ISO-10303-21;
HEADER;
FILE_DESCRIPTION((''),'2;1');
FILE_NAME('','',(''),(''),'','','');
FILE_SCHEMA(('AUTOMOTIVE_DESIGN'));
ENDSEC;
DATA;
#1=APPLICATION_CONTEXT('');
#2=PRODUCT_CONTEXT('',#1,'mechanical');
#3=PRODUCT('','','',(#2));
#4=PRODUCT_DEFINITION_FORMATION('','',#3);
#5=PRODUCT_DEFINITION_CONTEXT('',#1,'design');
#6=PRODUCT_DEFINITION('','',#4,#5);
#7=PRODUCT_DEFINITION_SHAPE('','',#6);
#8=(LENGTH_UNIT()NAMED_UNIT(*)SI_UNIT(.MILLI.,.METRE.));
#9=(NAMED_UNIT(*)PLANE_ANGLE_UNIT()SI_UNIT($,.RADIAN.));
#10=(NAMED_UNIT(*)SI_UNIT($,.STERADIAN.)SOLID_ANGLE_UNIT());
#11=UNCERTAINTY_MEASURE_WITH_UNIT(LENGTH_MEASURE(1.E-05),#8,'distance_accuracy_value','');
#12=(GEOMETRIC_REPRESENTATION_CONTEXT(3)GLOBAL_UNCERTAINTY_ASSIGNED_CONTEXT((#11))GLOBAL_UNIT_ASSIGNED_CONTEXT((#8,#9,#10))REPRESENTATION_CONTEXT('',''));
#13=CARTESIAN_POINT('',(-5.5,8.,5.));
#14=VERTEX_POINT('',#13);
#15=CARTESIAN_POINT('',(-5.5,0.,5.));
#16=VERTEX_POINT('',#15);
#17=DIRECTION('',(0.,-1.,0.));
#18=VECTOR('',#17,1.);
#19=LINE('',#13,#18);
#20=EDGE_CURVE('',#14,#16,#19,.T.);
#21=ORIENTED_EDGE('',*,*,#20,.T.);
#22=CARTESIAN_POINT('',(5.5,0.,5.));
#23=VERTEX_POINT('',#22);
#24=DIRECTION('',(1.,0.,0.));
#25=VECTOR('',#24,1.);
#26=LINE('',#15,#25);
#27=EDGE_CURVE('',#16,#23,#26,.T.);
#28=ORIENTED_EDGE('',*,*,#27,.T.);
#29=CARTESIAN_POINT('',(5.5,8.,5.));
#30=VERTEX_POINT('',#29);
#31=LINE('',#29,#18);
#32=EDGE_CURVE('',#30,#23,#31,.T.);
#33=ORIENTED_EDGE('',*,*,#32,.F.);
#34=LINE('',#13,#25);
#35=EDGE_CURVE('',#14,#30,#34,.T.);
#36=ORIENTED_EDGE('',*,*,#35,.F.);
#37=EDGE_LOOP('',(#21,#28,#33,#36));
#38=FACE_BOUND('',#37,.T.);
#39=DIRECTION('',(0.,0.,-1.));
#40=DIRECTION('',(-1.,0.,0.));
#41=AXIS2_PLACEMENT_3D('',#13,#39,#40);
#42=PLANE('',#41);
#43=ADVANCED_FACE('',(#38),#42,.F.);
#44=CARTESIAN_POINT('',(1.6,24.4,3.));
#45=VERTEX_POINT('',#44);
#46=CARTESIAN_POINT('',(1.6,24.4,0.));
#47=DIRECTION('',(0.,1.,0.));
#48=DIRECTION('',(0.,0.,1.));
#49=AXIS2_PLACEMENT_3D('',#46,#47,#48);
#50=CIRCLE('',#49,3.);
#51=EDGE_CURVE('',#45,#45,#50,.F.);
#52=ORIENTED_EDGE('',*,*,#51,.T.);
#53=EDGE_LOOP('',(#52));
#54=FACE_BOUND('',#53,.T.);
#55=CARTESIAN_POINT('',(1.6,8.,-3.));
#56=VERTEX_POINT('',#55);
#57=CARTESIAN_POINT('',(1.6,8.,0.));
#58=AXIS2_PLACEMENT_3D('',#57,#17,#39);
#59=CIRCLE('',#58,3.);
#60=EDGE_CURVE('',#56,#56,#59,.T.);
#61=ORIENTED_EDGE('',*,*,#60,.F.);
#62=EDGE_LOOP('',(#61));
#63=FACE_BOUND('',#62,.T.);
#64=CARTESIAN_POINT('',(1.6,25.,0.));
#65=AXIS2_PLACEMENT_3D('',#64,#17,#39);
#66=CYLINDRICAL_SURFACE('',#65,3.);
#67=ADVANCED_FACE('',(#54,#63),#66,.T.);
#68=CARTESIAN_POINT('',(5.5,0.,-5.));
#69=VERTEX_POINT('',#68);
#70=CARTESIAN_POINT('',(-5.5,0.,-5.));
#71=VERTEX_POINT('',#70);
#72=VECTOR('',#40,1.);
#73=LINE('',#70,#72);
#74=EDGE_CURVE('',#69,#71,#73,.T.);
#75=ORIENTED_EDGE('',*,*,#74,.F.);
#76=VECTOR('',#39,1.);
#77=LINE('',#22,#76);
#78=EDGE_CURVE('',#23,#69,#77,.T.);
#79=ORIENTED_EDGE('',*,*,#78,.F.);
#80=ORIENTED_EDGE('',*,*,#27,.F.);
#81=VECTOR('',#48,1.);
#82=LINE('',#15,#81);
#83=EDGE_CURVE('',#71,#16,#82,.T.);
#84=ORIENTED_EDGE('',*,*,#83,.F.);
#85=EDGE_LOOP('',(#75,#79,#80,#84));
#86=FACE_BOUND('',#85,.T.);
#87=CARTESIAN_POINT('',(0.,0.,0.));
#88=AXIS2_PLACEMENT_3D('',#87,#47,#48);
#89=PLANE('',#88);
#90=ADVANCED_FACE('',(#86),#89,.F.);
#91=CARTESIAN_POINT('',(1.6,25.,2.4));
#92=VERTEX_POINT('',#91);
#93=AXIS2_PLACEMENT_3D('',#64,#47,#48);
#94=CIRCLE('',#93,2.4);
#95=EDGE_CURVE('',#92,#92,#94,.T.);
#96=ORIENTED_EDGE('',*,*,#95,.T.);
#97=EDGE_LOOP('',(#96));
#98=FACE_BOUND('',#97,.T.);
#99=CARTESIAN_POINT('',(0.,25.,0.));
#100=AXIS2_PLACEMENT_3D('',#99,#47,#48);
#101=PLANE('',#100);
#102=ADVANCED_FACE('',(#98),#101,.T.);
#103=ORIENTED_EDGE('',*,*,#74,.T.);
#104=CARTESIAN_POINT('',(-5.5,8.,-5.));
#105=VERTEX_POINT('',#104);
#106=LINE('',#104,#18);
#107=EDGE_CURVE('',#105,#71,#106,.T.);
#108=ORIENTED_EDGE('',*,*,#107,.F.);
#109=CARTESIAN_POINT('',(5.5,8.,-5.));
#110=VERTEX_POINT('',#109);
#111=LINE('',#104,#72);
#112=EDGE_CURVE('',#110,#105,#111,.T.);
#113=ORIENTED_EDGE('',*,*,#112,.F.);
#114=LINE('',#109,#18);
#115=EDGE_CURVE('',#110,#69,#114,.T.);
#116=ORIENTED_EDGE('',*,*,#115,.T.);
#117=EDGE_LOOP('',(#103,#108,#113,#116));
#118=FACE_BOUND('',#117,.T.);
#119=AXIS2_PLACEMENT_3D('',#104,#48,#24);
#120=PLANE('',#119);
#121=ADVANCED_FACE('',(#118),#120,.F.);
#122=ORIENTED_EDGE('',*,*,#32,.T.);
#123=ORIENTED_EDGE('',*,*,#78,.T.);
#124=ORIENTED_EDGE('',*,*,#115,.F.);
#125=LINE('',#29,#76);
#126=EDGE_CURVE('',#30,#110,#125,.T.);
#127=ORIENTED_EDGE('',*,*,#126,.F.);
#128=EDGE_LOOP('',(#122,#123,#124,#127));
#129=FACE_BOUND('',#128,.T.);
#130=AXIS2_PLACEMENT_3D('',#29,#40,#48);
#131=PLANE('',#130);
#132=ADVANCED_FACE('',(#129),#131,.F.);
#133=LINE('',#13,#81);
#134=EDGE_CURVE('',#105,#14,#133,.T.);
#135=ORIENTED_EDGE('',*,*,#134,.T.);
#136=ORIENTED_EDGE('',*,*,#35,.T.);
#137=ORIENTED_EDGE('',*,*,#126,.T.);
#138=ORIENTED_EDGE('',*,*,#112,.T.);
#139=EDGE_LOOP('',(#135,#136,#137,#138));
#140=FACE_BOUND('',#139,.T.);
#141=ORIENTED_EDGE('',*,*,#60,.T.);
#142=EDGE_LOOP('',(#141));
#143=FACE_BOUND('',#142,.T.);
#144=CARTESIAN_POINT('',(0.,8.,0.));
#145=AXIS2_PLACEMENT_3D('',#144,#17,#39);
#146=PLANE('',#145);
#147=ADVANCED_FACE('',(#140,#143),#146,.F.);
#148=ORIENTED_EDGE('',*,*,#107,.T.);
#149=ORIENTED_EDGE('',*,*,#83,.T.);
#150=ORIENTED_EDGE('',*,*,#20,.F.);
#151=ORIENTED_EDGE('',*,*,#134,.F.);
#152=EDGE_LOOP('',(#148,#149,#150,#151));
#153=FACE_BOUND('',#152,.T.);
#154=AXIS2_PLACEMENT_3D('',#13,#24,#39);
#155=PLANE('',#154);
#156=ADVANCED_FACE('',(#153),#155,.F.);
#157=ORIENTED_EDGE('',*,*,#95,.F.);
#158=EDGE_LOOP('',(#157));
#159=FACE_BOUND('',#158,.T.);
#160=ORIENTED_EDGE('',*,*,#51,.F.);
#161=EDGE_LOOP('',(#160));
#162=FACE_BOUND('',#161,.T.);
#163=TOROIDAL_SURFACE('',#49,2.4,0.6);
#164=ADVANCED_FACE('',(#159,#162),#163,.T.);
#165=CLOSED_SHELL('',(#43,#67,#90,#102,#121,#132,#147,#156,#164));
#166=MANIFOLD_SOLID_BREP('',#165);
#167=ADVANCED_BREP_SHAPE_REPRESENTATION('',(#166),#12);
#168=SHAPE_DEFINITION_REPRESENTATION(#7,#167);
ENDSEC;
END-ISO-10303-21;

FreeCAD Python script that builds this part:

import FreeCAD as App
import Part
import Sketcher

V = App.Vector
Q = App.Units.Quantity


def edges_at(feature, points):
    """Names of the edges that pass closest to the given points."""
    edges = feature.Shape.Edges
    near = lambda p: min(range(len(edges)), key=lambda i: edges[i].distToShape(Part.Vertex(*p))[0])
    return sorted({f"Edge{near(p) + 1}" for p in points})


def add_polygon(sketch, points):
    """Adds a closed chain of lines whose ends are joined by coincident constraints."""
    first, n = sketch.GeometryCount, len(points)
    for a, b in zip(points, points[1:] + points[:1]):
        sketch.addGeometry(Part.LineSegment(App.Vector(*a, 0), App.Vector(*b, 0)), False)
    for i in range(n):
        sketch.addConstraint(Sketcher.Constraint("Coincident", first + i, 2, first + (i + 1) % n, 1))

doc = App.newDocument("Part")
body = doc.addObject("PartDesign::Body", "Body")

# Sketch on XZ plane
sketch1 = body.newObject("Sketcher::SketchObject", "Sketch")
sketch1.AttachmentSupport = (doc.getObject("XZ_Plane"), [""])
sketch1.MapMode = "FlatFace"
sketch1.addGeometry(Part.Circle(V(1.6, 0, 0), V(0, 0, 1), 3), False)
sketch1.addConstraint(Sketcher.Constraint("PointOnObject", 0, 3, -1))
sketch1.addConstraint(Sketcher.Constraint("Diameter", 0, Q("6 mm")))
sketch1.addConstraint(Sketcher.Constraint("DistanceX", -1, 1, 0, 3, Q("1.6 mm")))
pad1 = body.newObject("PartDesign::Pad", "Pad")
pad1.Profile = sketch1
pad1.Length = 25
pad1.Reversed = True

# Sketch on XZ plane
sketch2 = body.newObject("Sketcher::SketchObject", "Sketch001")
sketch2.AttachmentSupport = (doc.getObject("XZ_Plane"), [""])
sketch2.MapMode = "FlatFace"
add_polygon(sketch2, [(-5.5, -5), (-5.5, 5), (5.5, 5), (5.5, -5)])  # lines 0-3
sketch2.addGeometry(Part.Circle(V(1.6, 0, 0), V(0, 0, 1), 3), False)  # 4
sketch2.addConstraint(Sketcher.Constraint("Vertical", 0))
sketch2.addConstraint(Sketcher.Constraint("Horizontal", 1))
sketch2.addConstraint(Sketcher.Constraint("Vertical", 2))
sketch2.addConstraint(Sketcher.Constraint("Horizontal", 3))
sketch2.addConstraint(Sketcher.Constraint("Symmetric", 0, 2, 2, 2, -1, 1))
sketch2.addConstraint(Sketcher.Constraint("PointOnObject", 4, 3, -1))
sketch2.addConstraint(Sketcher.Constraint("Diameter", 4, Q("6 mm")))
sketch2.addConstraint(Sketcher.Constraint("DistanceX", 1, 1, 1, 2, Q("11 mm")))
sketch2.addConstraint(Sketcher.Constraint("DistanceY", 0, 1, 0, 2, Q("10 mm")))
sketch2.addConstraint(Sketcher.Constraint("DistanceX", -1, 1, 4, 3, Q("1.6 mm")))
pad2 = body.newObject("PartDesign::Pad", "Pad001")
pad2.Profile = sketch2
pad2.Length = 8
pad2.Reversed = True
doc.recompute()

fillet = body.newObject("PartDesign::Fillet", "Fillet")
fillet.Base = (pad2, edges_at(pad2, [(1.6, 25, -3)]))
fillet.Radius = 0.6

doc.recompute()
